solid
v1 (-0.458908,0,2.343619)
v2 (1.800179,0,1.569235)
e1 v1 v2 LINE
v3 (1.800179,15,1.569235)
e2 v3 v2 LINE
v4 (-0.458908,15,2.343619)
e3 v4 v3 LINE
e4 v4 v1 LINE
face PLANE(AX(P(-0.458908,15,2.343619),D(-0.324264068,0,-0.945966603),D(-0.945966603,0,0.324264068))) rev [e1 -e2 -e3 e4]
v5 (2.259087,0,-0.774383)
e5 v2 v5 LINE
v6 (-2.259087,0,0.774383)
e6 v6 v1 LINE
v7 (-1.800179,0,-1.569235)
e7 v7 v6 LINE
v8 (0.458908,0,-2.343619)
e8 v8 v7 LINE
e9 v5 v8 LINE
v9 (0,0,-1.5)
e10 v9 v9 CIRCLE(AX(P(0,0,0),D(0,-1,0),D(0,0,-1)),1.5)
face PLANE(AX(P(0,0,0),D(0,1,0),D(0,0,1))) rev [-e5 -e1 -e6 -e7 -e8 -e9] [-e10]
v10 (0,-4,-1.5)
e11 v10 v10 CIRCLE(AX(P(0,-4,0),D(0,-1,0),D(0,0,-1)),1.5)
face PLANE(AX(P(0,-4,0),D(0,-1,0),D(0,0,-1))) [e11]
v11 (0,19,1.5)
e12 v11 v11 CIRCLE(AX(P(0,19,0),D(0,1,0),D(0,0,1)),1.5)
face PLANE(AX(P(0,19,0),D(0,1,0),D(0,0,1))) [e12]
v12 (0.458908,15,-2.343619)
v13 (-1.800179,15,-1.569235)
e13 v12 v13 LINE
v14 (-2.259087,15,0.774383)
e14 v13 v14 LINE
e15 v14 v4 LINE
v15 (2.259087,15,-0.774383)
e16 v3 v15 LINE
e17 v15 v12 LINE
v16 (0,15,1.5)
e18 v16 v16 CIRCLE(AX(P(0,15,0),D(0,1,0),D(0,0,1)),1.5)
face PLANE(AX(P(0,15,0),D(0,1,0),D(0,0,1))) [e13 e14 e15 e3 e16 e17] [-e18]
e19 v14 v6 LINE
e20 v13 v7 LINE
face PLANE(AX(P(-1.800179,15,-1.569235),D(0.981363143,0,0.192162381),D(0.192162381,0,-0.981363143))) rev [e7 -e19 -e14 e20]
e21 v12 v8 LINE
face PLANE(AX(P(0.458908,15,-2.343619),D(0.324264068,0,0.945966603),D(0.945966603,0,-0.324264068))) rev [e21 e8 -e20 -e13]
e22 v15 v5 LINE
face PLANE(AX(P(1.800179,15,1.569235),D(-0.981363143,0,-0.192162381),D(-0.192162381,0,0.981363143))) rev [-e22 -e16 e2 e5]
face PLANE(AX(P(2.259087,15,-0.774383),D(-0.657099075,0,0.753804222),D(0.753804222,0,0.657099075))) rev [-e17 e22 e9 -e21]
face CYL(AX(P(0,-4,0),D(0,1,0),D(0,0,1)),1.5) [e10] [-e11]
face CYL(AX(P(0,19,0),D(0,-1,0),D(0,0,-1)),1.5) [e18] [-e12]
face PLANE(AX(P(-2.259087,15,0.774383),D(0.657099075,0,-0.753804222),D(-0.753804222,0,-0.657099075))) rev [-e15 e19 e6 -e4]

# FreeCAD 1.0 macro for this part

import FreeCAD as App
import Part
import Sketcher
from FreeCAD import Vector
Q = App.Units.Quantity

doc = App.newDocument("Part")
body = doc.addObject("PartDesign::Body", "Body")

# Sketch on XZ plane
sketch1 = body.newObject("Sketcher::SketchObject", "Sketch")
sketch1.AttachmentSupport = (doc.getObject("XZ_Plane"), [""])
sketch1.MapMode = "FlatFace"
sketch1.addGeometry([
    Part.LineSegment(Vector(1.8, 1.6, 0), Vector(2.3, -0.8, 0)),  # 0
    Part.LineSegment(Vector(2.3, -0.8, 0), Vector(0.5, -2.3, 0)),  # 1
    Part.LineSegment(Vector(0.5, -2.3, 0), Vector(-1.8, -1.6, 0)),  # 2
    Part.LineSegment(Vector(-1.8, -1.6, 0), Vector(-2.3, 0.8, 0)),  # 3
    Part.LineSegment(Vector(-2.3, 0.8, 0), Vector(-0.5, 2.3, 0)),  # 4
    Part.LineSegment(Vector(-0.5, 2.3, 0), Vector(1.8, 1.6, 0)),  # 5
], False)
sketch1.addConstraint([
    Sketcher.Constraint("Coincident", 0, 2, 1, 1),
    Sketcher.Constraint("Coincident", 1, 2, 2, 1),
    Sketcher.Constraint("Coincident", 2, 2, 3, 1),
    Sketcher.Constraint("Coincident", 3, 2, 4, 1),
    Sketcher.Constraint("Coincident", 4, 2, 5, 1),
    Sketcher.Constraint("Coincident", 5, 2, 0, 1),
    Sketcher.Constraint("Symmetric", 0, 2, 3, 2, -1, 1),
    Sketcher.Constraint("Symmetric", 1, 2, 4, 2, -1, 1),
    Sketcher.Constraint("Symmetric", 2, 2, 5, 2, -1, 1),
    Sketcher.Constraint("Equal", 0, 1),
    Sketcher.Constraint("Equal", 1, 2),
    Sketcher.Constraint("DistanceY", 1, 2, 3, 2, Q("3.118002 mm")),
    Sketcher.Constraint("DistanceY", 1, 2, -1, 1, Q("2.343619 mm")),
    Sketcher.Constraint("DistanceX", 2, 2, -1, 1, Q("1.800179 mm")),
    Sketcher.Constraint("DistanceX", 1, 2, 0, 2, Q("1.800179 mm")),
])
pad1 = body.newObject("PartDesign::Pad", "Pad")
pad1.Profile = sketch1
pad1.Length = 15
pad1.Reversed = True

# Sketch on XZ plane
sketch2 = body.newObject("Sketcher::SketchObject", "Sketch001")
sketch2.AttachmentSupport = (doc.getObject("XZ_Plane"), [""])
sketch2.MapMode = "FlatFace"
sketch2.AttachmentOffset = App.Placement(Vector(0, 0, -15), App.Rotation())
sketch2.addGeometry(Part.Circle(Vector(0, 0, 0), Vector(0, 0, 1), 1.5), False)
sketch2.addConstraint([
    Sketcher.Constraint("Coincident", 0, 3, -1, 1),
    Sketcher.Constraint("Diameter", 0, Q("3 mm")),
])
pad2 = body.newObject("PartDesign::Pad", "Pad001")
pad2.Profile = sketch2
pad2.Length = 4
pad2.Reversed = True

# Sketch on XZ plane
sketch3 = body.newObject("Sketcher::SketchObject", "Sketch002")
sketch3.AttachmentSupport = (doc.getObject("XZ_Plane"), [""])
sketch3.MapMode = "FlatFace"
sketch3.addGeometry(Part.Circle(Vector(0, 0, 0), Vector(0, 0, 1), 1.5), False)
sketch3.addConstraint([
    Sketcher.Constraint("Coincident", 0, 3, -1, 1),
    Sketcher.Constraint("Diameter", 0, Q("3 mm")),
])
pad3 = body.newObject("PartDesign::Pad", "Pad002")
pad3.Profile = sketch3
pad3.Length = 4

doc.recompute()
